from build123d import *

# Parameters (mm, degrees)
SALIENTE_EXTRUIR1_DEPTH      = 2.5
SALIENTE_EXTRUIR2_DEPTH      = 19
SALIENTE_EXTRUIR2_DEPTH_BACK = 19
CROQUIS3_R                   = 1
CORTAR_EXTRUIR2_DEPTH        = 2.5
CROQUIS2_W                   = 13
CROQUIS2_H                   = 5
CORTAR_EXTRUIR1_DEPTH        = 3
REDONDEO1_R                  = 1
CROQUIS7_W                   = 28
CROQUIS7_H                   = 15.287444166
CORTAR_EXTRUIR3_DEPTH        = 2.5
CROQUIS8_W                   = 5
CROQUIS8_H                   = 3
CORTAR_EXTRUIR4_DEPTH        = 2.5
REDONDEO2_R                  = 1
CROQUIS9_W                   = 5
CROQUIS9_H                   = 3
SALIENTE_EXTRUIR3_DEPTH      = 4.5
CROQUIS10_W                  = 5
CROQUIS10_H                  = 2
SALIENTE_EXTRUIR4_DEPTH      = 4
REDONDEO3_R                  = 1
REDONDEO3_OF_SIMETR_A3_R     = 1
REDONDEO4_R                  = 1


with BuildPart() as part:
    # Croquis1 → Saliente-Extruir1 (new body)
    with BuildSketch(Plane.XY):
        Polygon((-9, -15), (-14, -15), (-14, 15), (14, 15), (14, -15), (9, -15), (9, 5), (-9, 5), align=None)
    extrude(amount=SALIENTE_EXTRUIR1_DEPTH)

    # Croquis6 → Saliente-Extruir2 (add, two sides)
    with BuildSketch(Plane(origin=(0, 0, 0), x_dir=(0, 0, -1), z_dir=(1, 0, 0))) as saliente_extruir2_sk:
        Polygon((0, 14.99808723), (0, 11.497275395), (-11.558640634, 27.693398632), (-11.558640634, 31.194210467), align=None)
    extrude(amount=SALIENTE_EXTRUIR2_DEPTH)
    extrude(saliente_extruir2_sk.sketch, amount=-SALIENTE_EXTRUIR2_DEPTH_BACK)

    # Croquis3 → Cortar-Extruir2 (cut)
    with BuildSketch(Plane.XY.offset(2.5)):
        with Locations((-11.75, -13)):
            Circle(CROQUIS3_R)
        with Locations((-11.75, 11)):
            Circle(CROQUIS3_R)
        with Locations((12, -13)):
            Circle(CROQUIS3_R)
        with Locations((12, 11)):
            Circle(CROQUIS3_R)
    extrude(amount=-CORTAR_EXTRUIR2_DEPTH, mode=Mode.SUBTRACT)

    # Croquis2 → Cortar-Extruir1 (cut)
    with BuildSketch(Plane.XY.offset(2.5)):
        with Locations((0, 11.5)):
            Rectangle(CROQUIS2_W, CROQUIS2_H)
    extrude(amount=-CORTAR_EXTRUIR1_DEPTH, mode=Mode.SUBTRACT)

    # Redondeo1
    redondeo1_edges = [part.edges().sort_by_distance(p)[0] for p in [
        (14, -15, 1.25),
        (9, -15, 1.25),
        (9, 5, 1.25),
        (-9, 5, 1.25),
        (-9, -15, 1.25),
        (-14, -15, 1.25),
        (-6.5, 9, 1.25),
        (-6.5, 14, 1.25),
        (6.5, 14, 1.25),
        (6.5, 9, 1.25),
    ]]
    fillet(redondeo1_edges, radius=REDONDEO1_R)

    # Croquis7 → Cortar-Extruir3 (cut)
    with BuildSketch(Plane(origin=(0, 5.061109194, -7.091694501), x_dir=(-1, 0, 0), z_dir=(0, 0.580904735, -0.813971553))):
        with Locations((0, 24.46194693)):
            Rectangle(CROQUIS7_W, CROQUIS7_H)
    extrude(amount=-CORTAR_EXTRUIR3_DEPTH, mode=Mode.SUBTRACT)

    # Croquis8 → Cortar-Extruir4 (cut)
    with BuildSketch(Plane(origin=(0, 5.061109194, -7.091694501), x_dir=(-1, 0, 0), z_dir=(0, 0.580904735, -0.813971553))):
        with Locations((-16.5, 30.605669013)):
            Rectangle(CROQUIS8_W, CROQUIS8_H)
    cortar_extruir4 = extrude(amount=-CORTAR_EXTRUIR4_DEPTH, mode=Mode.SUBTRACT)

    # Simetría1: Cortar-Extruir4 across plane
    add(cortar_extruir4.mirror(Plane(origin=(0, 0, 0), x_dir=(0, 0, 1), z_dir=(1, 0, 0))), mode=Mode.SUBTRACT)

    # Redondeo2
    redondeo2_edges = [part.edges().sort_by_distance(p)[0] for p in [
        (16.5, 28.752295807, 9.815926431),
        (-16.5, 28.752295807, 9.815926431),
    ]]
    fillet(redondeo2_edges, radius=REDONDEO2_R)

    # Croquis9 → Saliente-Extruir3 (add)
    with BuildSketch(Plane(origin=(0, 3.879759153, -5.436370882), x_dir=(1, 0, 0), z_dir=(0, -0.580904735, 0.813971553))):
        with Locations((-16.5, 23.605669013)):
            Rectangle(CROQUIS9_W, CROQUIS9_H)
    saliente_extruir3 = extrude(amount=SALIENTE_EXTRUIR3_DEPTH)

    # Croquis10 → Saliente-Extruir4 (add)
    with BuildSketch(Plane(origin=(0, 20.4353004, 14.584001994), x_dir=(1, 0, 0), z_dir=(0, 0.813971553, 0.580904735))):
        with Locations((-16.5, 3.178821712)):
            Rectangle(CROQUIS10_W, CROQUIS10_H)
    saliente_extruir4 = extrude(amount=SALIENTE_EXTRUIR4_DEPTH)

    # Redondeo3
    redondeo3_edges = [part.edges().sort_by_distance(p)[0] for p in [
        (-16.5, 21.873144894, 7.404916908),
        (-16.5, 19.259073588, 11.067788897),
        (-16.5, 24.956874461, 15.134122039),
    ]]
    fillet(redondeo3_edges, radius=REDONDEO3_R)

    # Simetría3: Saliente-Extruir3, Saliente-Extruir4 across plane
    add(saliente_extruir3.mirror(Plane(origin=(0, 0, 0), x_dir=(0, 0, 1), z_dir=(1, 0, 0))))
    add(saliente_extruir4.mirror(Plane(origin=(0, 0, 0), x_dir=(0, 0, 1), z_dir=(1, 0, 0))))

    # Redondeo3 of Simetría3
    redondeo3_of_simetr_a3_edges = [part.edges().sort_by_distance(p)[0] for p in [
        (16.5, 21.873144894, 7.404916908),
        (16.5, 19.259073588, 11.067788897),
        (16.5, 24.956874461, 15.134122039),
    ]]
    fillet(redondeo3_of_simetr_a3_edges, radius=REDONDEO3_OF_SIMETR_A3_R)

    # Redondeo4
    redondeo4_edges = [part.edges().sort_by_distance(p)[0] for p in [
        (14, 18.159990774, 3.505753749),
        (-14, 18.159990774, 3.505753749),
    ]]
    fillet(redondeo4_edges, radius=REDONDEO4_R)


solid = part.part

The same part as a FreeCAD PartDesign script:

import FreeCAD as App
import Part
import Sketcher
from FreeCAD import Vector
Q = App.Units.Quantity


def edges_at(feature, points):
    """Names of the edges that pass closest to the given points."""
    edges = feature.Shape.Edges
    near = lambda p: min(range(len(edges)), key=lambda i: edges[i].distToShape(Part.Vertex(*p))[0])
    return sorted({f"Edge{near(p) + 1}" for p in points})


def add_polygon(sketch, points):
    """Adds a closed chain of lines whose ends are joined by coincident constraints."""
    first, n = sketch.GeometryCount, len(points)
    for a, b in zip(points, points[1:] + points[:1]):
        sketch.addGeometry(Part.LineSegment(App.Vector(*a, 0), App.Vector(*b, 0)), False)
    for i in range(n):
        sketch.addConstraint(Sketcher.Constraint("Coincident", first + i, 2, first + (i + 1) % n, 1))

doc = App.newDocument("Part")
params = doc.addObject("Spreadsheet::Sheet", "Params")
for row, (alias, value) in enumerate([
    ("sketch1_width", "5 mm"),
    ("sketch1_width2", "18 mm"),
    ("sketch1_height", "20 mm"),
    ("sketch1_height2", "30 mm"),
    ("pad1_length", "2.5 mm"),
    ("pad2_length", "19 mm"),
    ("pad2_length2", "19 mm"),
    ("sketch3_diameter", "2 mm"),
    ("pocket1_length", "2.5 mm"),
    ("sketch4_width", "13 mm"),
    ("sketch4_height", "5 mm"),
    ("pocket2_length", "3 mm"),
    ("fillet_radius", "1 mm"),
    ("sketch5_width", "28 mm"),
    ("pocket3_length", "2.5 mm"),
    ("sketch6_width", "5 mm"),
    ("sketch6_height", "3 mm"),
    ("pocket4_length", "2.5 mm"),
    ("fillet2_radius", "1 mm"),
    ("sketch7_width", "5 mm"),
    ("sketch7_height", "3 mm"),
    ("pad3_length", "4.5 mm"),
    ("sketch8_width", "5 mm"),
    ("sketch8_height", "2 mm"),
    ("pad4_length", "4 mm"),
    ("fillet3_radius", "1 mm"),
    ("fillet4_radius", "1 mm"),
    ("fillet5_radius", "1 mm"),
], start=1):
    params.set(f"A{row}", alias)
    params.set(f"B{row}", "=" + value)
    params.setAlias(f"B{row}", alias)

body = doc.addObject("PartDesign::Body", "Body")

# Sketch on XY plane
sketch1 = doc.addObject("Sketcher::SketchObject", "Sketch")
body.addObject(sketch1)
sketch1.AttachmentSupport = (doc.XY_Plane, [""])
sketch1.MapMode = "FlatFace"
add_polygon(sketch1, [(-14, -15), (-9, -15), (-9, 5), (9, 5), (9, -15), (14, -15), (14, 15), (-14, 15)])  # lines 0-7
sketch1.addConstraint([
    Sketcher.Constraint("Horizontal", 0),
    Sketcher.Constraint("Vertical", 1),
    Sketcher.Constraint("Horizontal", 2),
    Sketcher.Constraint("Vertical", 3),
    Sketcher.Constraint("Horizontal", 4),
    Sketcher.Constraint("Vertical", 5),
    Sketcher.Constraint("Horizontal", 6),
    Sketcher.Constraint("Vertical", 7),
    Sketcher.Constraint("Symmetric", 4, 2, 6, 2, -1, 1),
    Sketcher.Constraint("Symmetric", 0, 2, 3, 2, -2),
    Sketcher.Constraint("DistanceX", 0, 1, 0, 2, Q("5 mm")),
    Sketcher.Constraint("DistanceX", 2, 1, 2, 2, Q("18 mm")),
    Sketcher.Constraint("DistanceY", 1, 1, 1, 2, Q("20 mm")),
    Sketcher.Constraint("DistanceY", 5, 1, 5, 2, Q("30 mm")),
])
sketch1.setExpression("Constraints[18]", "Params.sketch1_width")
sketch1.setExpression("Constraints[19]", "Params.sketch1_width2")
sketch1.setExpression("Constraints[20]", "Params.sketch1_height")
sketch1.setExpression("Constraints[21]", "Params.sketch1_height2")
pad1 = doc.addObject("PartDesign::Pad", "Pad")
body.addObject(pad1)
pad1.Profile = sketch1
pad1.setExpression("Length", "Params.pad1_length")

# Sketch on YZ plane
sketch2 = doc.addObject("Sketcher::SketchObject", "Sketch001")
body.addObject(sketch2)
sketch2.AttachmentSupport = (doc.YZ_Plane, [""])
sketch2.MapMode = "FlatFace"
add_polygon(sketch2, [(11.5, 0), (15, 0), (31.2, 11.6), (27.7, 11.6)])  # lines 0-3
sketch2.addConstraint([
    Sketcher.Constraint("Horizontal", 0),
    Sketcher.Constraint("Horizontal", 2),
    Sketcher.Constraint("PointOnObject", 0, 2, -1),
    Sketcher.Constraint("Parallel", 1, 3),
    Sketcher.Constraint("DistanceX", 0, 1, 0, 2, Q("3.500812 mm")),
    Sketcher.Constraint("DistanceX", -1, 1, 2, 2, Q("27.693399 mm")),
    Sketcher.Constraint("DistanceY", -1, 1, 1, 2, Q("11.558641 mm")),
    Sketcher.Constraint("DistanceX", 0, 2, 2, 2, Q("12.695311 mm")),
])
pad2 = doc.addObject("PartDesign::Pad", "Pad001")
body.addObject(pad2)
pad2.Profile = sketch2
pad2.Type = "TwoLengths"
pad2.setExpression("Length", "Params.pad2_length")
pad2.setExpression("Length2", "Params.pad2_length2")

# Sketch on XY plane
sketch3 = doc.addObject("Sketcher::SketchObject", "Sketch002")
body.addObject(sketch3)
sketch3.AttachmentSupport = (doc.XY_Plane, [""])
sketch3.MapMode = "FlatFace"
sketch3.AttachmentOffset = App.Placement(Vector(0, 0, 2.5), App.Rotation())
sketch3.addGeometry([
    Part.Circle(Vector(-11.8, -13, 0), Vector(0, 0, 1), 1),
    Part.Circle(Vector(-11.8, 11, 0), Vector(0, 0, 1), 1),
    Part.Circle(Vector(12, -13, 0), Vector(0, 0, 1), 1),
    Part.Circle(Vector(12, 11, 0), Vector(0, 0, 1), 1),
], False)
sketch3.addConstraint([
    Sketcher.Constraint("Equal", 0, 1),
    Sketcher.Constraint("Equal", 1, 2),
    Sketcher.Constraint("Equal", 2, 3),
    Sketcher.Constraint("Horizontal", 0, 3, 2, 3),
    Sketcher.Constraint("Horizontal", 1, 3, 3, 3),
    Sketcher.Constraint("Vertical", 0, 3, 1, 3),
    Sketcher.Constraint("Vertical", 2, 3, 3, 3),
    Sketcher.Constraint("Diameter", 0, Q("2 mm")),
    Sketcher.Constraint("DistanceY", 0, 3, -1, 1, Q("13 mm")),
    Sketcher.Constraint("DistanceY", -1, 1, 1, 3, Q("11 mm")),
    Sketcher.Constraint("DistanceX", -1, 1, 2, 3, Q("12 mm")),
    Sketcher.Constraint("DistanceX", 0, 3, -1, 1, Q("11.75 mm")),
])
sketch3.setExpression("Constraints[7]", "Params.sketch3_diameter")
pocket1 = doc.addObject("PartDesign::Pocket", "Pocket")
body.addObject(pocket1)
pocket1.Profile = sketch3
pocket1.setExpression("Length", "Params.pocket1_length")

# Sketch on XY plane
sketch4 = doc.addObject("Sketcher::SketchObject", "Sketch003")
body.addObject(sketch4)
sketch4.AttachmentSupport = (doc.XY_Plane, [""])
sketch4.MapMode = "FlatFace"
sketch4.AttachmentOffset = App.Placement(Vector(0, 0, 2.5), App.Rotation())
add_polygon(sketch4, [(-6, 14), (-6, 9), (6, 9), (6, 14)])  # lines 0-3
sketch4.addConstraint([
    Sketcher.Constraint("Vertical", 0),
    Sketcher.Constraint("Horizontal", 1),
    Sketcher.Constraint("Vertical", 2),
    Sketcher.Constraint("Horizontal", 3),
    Sketcher.Constraint("DistanceX", 1, 1, 1, 2, Q("13 mm")),
    Sketcher.Constraint("DistanceY", 0, 2, 0, 1, Q("5 mm")),
    Sketcher.Constraint("DistanceY", -1, 1, 0, 2, Q("9 mm")),
    Sketcher.Constraint("DistanceX", 0, 2, -1, 1, Q("6.5 mm")),
])
sketch4.setExpression("Constraints[8]", "Params.sketch4_width")
sketch4.setExpression("Constraints[9]", "Params.sketch4_height")
pocket2 = doc.addObject("PartDesign::Pocket", "Pocket001")
body.addObject(pocket2)
pocket2.Profile = sketch4
pocket2.setExpression("Length", "Params.pocket2_length")
doc.recompute()

fillet = doc.addObject("PartDesign::Fillet", "Fillet")
body.addObject(fillet)
fillet.Base = (pocket2, edges_at(pocket2, [
    (14, -15, 1.25),
    (9, -15, 1.25),
    (9, 5, 1.25),
    (-9, 5, 1.25),
    (-9, -15, 1.25),
    (-14, -15, 1.25),
    (-6.5, 9, 1.25),
    (-6.5, 14, 1.25),
    (6.5, 14, 1.25),
    (6.5, 9, 1.25),
]))
fillet.setExpression("Radius", "Params.fillet_radius")

# Sketch on an angled plane
sketch5 = doc.addObject("Sketcher::SketchObject", "Sketch004")
body.addObject(sketch5)
sketch5.Placement = App.Placement(Vector(0, 5.061109, -7.091695), App.Rotation(Vector(-1, 0, 0), Vector(0, 0.813971553, 0.580904735), Vector(0, 0.580904735, -0.813971553), "ZXY"))
add_polygon(sketch5, [(-14, 32), (-14, 17), (14, 17), (14, 32)])  # lines 0-3
sketch5.addConstraint([
    Sketcher.Constraint("Vertical", 0),
    Sketcher.Constraint("Horizontal", 1),
    Sketcher.Constraint("Vertical", 2),
    Sketcher.Constraint("Horizontal", 3),
    Sketcher.Constraint("DistanceX", 1, 1, 1, 2, Q("28 mm")),
    Sketcher.Constraint("DistanceX", 0, 2, -1, 1, Q("14 mm")),
    Sketcher.Constraint("DistanceY", 0, 2, 0, 1, Q("15.287444 mm")),
    Sketcher.Constraint("DistanceY", -1, 1, 2, 2, Q("32.105669 mm")),
])
sketch5.setExpression("Constraints[8]", "Params.sketch5_width")
pocket3 = doc.addObject("PartDesign::Pocket", "Pocket002")
body.addObject(pocket3)
pocket3.Profile = sketch5
pocket3.setExpression("Length", "Params.pocket3_length")

# Sketch on an angled plane
sketch6 = doc.addObject("Sketcher::SketchObject", "Sketch005")
body.addObject(sketch6)
sketch6.Placement = App.Placement(Vector(0, 5.061109, -7.091695), App.Rotation(Vector(-1, 0, 0), Vector(0, 0.813971553, 0.580904735), Vector(0, 0.580904735, -0.813971553), "ZXY"))
add_polygon(sketch6, [(-19, 32.1), (-19, 29.1), (-14, 29.1), (-14, 32.1)])  # lines 0-3
sketch6.addConstraint([
    Sketcher.Constraint("Vertical", 0),
    Sketcher.Constraint("Horizontal", 1),
    Sketcher.Constraint("Vertical", 2),
    Sketcher.Constraint("Horizontal", 3),
    Sketcher.Constraint("DistanceX", 1, 1, 1, 2, Q("5 mm")),
    Sketcher.Constraint("DistanceY", 0, 2, 0, 1, Q("3 mm")),
    Sketcher.Constraint("DistanceX", 0, 2, -1, 1, Q("19 mm")),
    Sketcher.Constraint("DistanceY", -1, 1, 0, 2, Q("29.105669 mm")),
])
sketch6.setExpression("Constraints[8]", "Params.sketch6_width")
sketch6.setExpression("Constraints[9]", "Params.sketch6_height")
pocket4 = doc.addObject("PartDesign::Pocket", "Pocket003")
body.addObject(pocket4)
pocket4.Profile = sketch6
pocket4.setExpression("Length", "Params.pocket4_length")
doc.recompute()

mirrored = doc.addObject("PartDesign::Mirrored", "Mirrored")
body.addObject(mirrored)
mirrored.Originals = [pocket4]
mirrored.MirrorPlane = (doc.YZ_Plane, [""])
body.Tip = mirrored
doc.recompute()

fillet2 = doc.addObject("PartDesign::Fillet", "Fillet001")
body.addObject(fillet2)
fillet2.Base = (mirrored, edges_at(mirrored, [(16.5, 28.752, 9.816), (-16.5, 28.752, 9.816)]))
fillet2.setExpression("Radius", "Params.fillet2_radius")

# Sketch on an angled plane
sketch7 = doc.addObject("Sketcher::SketchObject", "Sketch006")
body.addObject(sketch7)
sketch7.Placement = App.Placement(Vector(0, 3.879759, -5.436371), App.Rotation(Vector(1, 0, 0), Vector(0, 0.813971553, 0.580904735), Vector(0, -0.580904735, 0.813971553), "ZXY"))
add_polygon(sketch7, [(-19, 25.1), (-19, 22.1), (-14, 22.1), (-14, 25.1)])  # lines 0-3
sketch7.addConstraint([
    Sketcher.Constraint("Vertical", 0),
    Sketcher.Constraint("Horizontal", 1),
    Sketcher.Constraint("Vertical", 2),
    Sketcher.Constraint("Horizontal", 3),
    Sketcher.Constraint("DistanceX", 1, 1, 1, 2, Q("5 mm")),
    Sketcher.Constraint("DistanceY", 0, 2, 0, 1, Q("3 mm")),
    Sketcher.Constraint("DistanceX", 0, 2, -1, 1, Q("19 mm")),
    Sketcher.Constraint("DistanceY", -1, 1, 0, 2, Q("22.105669 mm")),
])
sketch7.setExpression("Constraints[8]", "Params.sketch7_width")
sketch7.setExpression("Constraints[9]", "Params.sketch7_height")
pad3 = doc.addObject("PartDesign::Pad", "Pad002")
body.addObject(pad3)
pad3.Profile = sketch7
pad3.setExpression("Length", "Params.pad3_length")

# Sketch on an angled plane
sketch8 = doc.addObject("Sketcher::SketchObject", "Sketch007")
body.addObject(sketch8)
sketch8.Placement = App.Placement(Vector(0, 20.4353, 14.584002), App.Rotation(Vector(1, 0, 0), Vector(0, 0.580904735, -0.813971553), Vector(0, 0.813971553, 0.580904735), "ZXY"))
add_polygon(sketch8, [(-19, 4.2), (-19, 2.2), (-14, 2.2), (-14, 4.2)])  # lines 0-3
sketch8.addConstraint([
    Sketcher.Constraint("Vertical", 0),
    Sketcher.Constraint("Horizontal", 1),
    Sketcher.Constraint("Vertical", 2),
    Sketcher.Constraint("Horizontal", 3),
    Sketcher.Constraint("DistanceX", 1, 1, 1, 2, Q("5 mm")),
    Sketcher.Constraint("DistanceY", 0, 2, 0, 1, Q("2 mm")),
    Sketcher.Constraint("DistanceX", 0, 2, -1, 1, Q("19 mm")),
    Sketcher.Constraint("DistanceY", -1, 1, 0, 2, Q("2.178822 mm")),
])
sketch8.setExpression("Constraints[8]", "Params.sketch8_width")
sketch8.setExpression("Constraints[9]", "Params.sketch8_height")
pad4 = doc.addObject("PartDesign::Pad", "Pad003")
body.addObject(pad4)
pad4.Profile = sketch8
pad4.setExpression("Length", "Params.pad4_length")
doc.recompute()

fillet3 = doc.addObject("PartDesign::Fillet", "Fillet002")
body.addObject(fillet3)
fillet3.Base = (pad4, edges_at(pad4, [(-16.5, 21.873, 7.405), (-16.5, 19.259, 11.068), (-16.5, 24.957, 15.134)]))
fillet3.setExpression("Radius", "Params.fillet3_radius")
doc.recompute()

mirrored2 = doc.addObject("PartDesign::Mirrored", "Mirrored001")
body.addObject(mirrored2)
mirrored2.Originals = [pad3, pad4]
mirrored2.MirrorPlane = (doc.YZ_Plane, [""])
body.Tip = mirrored2
doc.recompute()

fillet4 = doc.addObject("PartDesign::Fillet", "Fillet003")
body.addObject(fillet4)
fillet4.Base = (mirrored2, edges_at(mirrored2, [(16.5, 21.873, 7.405), (16.5, 19.259, 11.068), (16.5, 24.957, 15.134)]))
fillet4.setExpression("Radius", "Params.fillet4_radius")
doc.recompute()

fillet5 = doc.addObject("PartDesign::Fillet", "Fillet004")
body.addObject(fillet5)
fillet5.Base = (fillet4, edges_at(fillet4, [(14, 18.16, 3.506), (-14, 18.16, 3.506)]))
fillet5.setExpression("Radius", "Params.fillet5_radius")

doc.recompute()
